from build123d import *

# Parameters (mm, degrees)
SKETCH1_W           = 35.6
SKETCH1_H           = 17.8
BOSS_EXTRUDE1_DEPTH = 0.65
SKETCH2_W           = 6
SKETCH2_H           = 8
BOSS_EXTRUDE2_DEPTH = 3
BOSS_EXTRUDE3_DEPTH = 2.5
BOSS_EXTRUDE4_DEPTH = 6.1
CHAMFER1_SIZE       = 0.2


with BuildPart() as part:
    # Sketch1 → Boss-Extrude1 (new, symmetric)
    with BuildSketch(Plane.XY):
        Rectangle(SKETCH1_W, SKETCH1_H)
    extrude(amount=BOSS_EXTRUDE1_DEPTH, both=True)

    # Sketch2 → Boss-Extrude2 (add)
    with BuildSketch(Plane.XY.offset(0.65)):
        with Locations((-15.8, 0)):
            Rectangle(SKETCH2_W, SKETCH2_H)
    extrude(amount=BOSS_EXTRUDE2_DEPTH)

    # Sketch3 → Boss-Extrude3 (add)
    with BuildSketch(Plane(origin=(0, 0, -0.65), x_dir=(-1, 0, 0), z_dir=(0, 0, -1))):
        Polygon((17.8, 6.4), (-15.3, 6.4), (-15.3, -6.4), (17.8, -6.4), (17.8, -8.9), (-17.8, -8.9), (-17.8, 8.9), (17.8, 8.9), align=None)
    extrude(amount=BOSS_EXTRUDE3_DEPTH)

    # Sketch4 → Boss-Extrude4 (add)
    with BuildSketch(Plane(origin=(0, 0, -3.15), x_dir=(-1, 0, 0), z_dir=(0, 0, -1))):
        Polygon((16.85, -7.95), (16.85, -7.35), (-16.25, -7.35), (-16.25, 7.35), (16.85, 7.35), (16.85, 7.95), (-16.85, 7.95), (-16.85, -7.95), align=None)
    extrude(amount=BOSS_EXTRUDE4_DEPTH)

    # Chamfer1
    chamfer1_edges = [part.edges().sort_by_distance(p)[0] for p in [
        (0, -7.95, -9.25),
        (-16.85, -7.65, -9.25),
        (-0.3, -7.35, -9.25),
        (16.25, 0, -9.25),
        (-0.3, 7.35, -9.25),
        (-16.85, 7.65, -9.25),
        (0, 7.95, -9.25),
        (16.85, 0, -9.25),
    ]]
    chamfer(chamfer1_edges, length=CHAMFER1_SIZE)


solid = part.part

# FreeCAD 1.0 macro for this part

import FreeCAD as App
import Part
import Sketcher


def edges_at(feature, points):
    """Names of the edges that pass closest to the given points."""
    edges = feature.Shape.Edges
    near = lambda p: min(range(len(edges)), key=lambda i: edges[i].distToShape(Part.Vertex(*p))[0])
    return sorted({f"Edge{near(p) + 1}" for p in points})


def add_polygon(sketch, points):
    """Adds a closed chain of lines whose ends are joined by coincident constraints."""
    first, n = sketch.GeometryCount, len(points)
    for a, b in zip(points, points[1:] + points[:1]):
        sketch.addGeometry(Part.LineSegment(App.Vector(*a, 0), App.Vector(*b, 0)), False)
    for i in range(n):
        sketch.addConstraint(Sketcher.Constraint("Coincident", first + i, 2, first + (i + 1) % n, 1))

doc = App.newDocument("Part")
body = doc.addObject("PartDesign::Body", "Body")

# Sketch on XY plane
sketch1 = body.newObject("Sketcher::SketchObject", "Sketch")
sketch1.AttachmentSupport = (doc.getObject("XY_Plane"), [""])
sketch1.MapMode = "FlatFace"
add_polygon(sketch1, [(-18, 9), (-18, -9), (18, -9), (18, 9)])  # lines 0-3
sketch1.addConstraint(Sketcher.Constraint("Vertical", 0))
sketch1.addConstraint(Sketcher.Constraint("Horizontal", 1))
sketch1.addConstraint(Sketcher.Constraint("Vertical", 2))
sketch1.addConstraint(Sketcher.Constraint("Horizontal", 3))
sketch1.addConstraint(Sketcher.Constraint("Symmetric", 0, 2, 2, 2, -1, 1))
sketch1.addConstraint(Sketcher.Constraint("DistanceX", 1, 1, 1, 2, 35.6))
sketch1.addConstraint(Sketcher.Constraint("DistanceY", 0, 2, 0, 1, 17.8))
pad1 = body.newObject("PartDesign::Pad", "Pad")
pad1.Profile = sketch1
pad1.Length = 1.3
pad1.Midplane = True

# Sketch on XY plane
sketch2 = body.newObject("Sketcher::SketchObject", "Sketch001")
sketch2.AttachmentSupport = (doc.getObject("XY_Plane"), [""])
sketch2.MapMode = "FlatFace"
sketch2.AttachmentOffset = App.Placement(App.Vector(0, 0, 0.65), App.Rotation())
add_polygon(sketch2, [(-19, 4), (-19, -4), (-13, -4), (-13, 4)])  # lines 0-3
sketch2.addConstraint(Sketcher.Constraint("Vertical", 0))
sketch2.addConstraint(Sketcher.Constraint("Horizontal", 1))
sketch2.addConstraint(Sketcher.Constraint("Vertical", 2))
sketch2.addConstraint(Sketcher.Constraint("Horizontal", 3))
sketch2.addConstraint(Sketcher.Constraint("DistanceX", 1, 1, 1, 2, 6.0))
sketch2.addConstraint(Sketcher.Constraint("DistanceY", 0, 2, 0, 1, 8.0))
sketch2.addConstraint(Sketcher.Constraint("DistanceY", 0, 2, -1, 1, 4.0))
sketch2.addConstraint(Sketcher.Constraint("DistanceX", 0, 2, -1, 1, 18.8))
pad2 = body.newObject("PartDesign::Pad", "Pad001")
pad2.Profile = sketch2
pad2.Length = 3

# Sketch on XY plane
sketch3 = body.newObject("Sketcher::SketchObject", "Sketch002")
sketch3.AttachmentSupport = (doc.getObject("XY_Plane"), [""])
sketch3.MapMode = "FlatFace"
sketch3.AttachmentOffset = App.Placement(App.Vector(0, 0, -0.65), App.Rotation())
add_polygon(sketch3, [(15.3, 6.4), (-17.8, 6.4), (-17.8, 8.9), (17.8, 8.9), (17.8, -8.9), (-17.8, -8.9), (-17.8, -6.4), (15.3, -6.4)])  # lines 0-7
sketch3.addConstraint(Sketcher.Constraint("Horizontal", 0))
sketch3.addConstraint(Sketcher.Constraint("Vertical", 1))
sketch3.addConstraint(Sketcher.Constraint("Horizontal", 2))
sketch3.addConstraint(Sketcher.Constraint("Vertical", 3))
sketch3.addConstraint(Sketcher.Constraint("Horizontal", 4))
sketch3.addConstraint(Sketcher.Constraint("Vertical", 5))
sketch3.addConstraint(Sketcher.Constraint("Horizontal", 6))
sketch3.addConstraint(Sketcher.Constraint("Vertical", 7))
sketch3.addConstraint(Sketcher.Constraint("Symmetric", 1, 2, 3, 2, -1, 1))
sketch3.addConstraint(Sketcher.Constraint("Symmetric", 0, 2, 5, 2, -1))
sketch3.addConstraint(Sketcher.Constraint("DistanceX", 0, 2, 0, 1, 33.1))
sketch3.addConstraint(Sketcher.Constraint("DistanceX", 2, 1, 2, 2, 35.6))
sketch3.addConstraint(Sketcher.Constraint("DistanceY", 1, 1, 1, 2, 2.5))
sketch3.addConstraint(Sketcher.Constraint("DistanceY", 3, 2, 3, 1, 17.8))
pad3 = body.newObject("PartDesign::Pad", "Pad002")
pad3.Profile = sketch3
pad3.Length = 2.5
pad3.Reversed = True

# Sketch on XY plane
sketch4 = body.newObject("Sketcher::SketchObject", "Sketch003")
sketch4.AttachmentSupport = (doc.getObject("XY_Plane"), [""])
sketch4.MapMode = "FlatFace"
sketch4.AttachmentOffset = App.Placement(App.Vector(0, 0, -3.15), App.Rotation())
add_polygon(sketch4, [(-16.9, -8), (-16.9, -7.3), (16.2, -7.3), (16.2, 7.3), (-16.9, 7.3), (-16.9, 8), (16.9, 8), (16.9, -8)])  # lines 0-7
sketch4.addConstraint(Sketcher.Constraint("Vertical", 0))
sketch4.addConstraint(Sketcher.Constraint("Horizontal", 1))
sketch4.addConstraint(Sketcher.Constraint("Vertical", 2))
sketch4.addConstraint(Sketcher.Constraint("Horizontal", 3))
sketch4.addConstraint(Sketcher.Constraint("Vertical", 4))
sketch4.addConstraint(Sketcher.Constraint("Horizontal", 5))
sketch4.addConstraint(Sketcher.Constraint("Vertical", 6))
sketch4.addConstraint(Sketcher.Constraint("Horizontal", 7))
sketch4.addConstraint(Sketcher.Constraint("Symmetric", 4, 2, 6, 2, -1, 1))
sketch4.addConstraint(Sketcher.Constraint("Symmetric", 0, 2, 3, 2, -1))
sketch4.addConstraint(Sketcher.Constraint("DistanceX", 1, 1, 1, 2, 33.1))
sketch4.addConstraint(Sketcher.Constraint("DistanceX", 5, 1, 5, 2, 33.7))
sketch4.addConstraint(Sketcher.Constraint("DistanceY", 0, 1, 0, 2, 0.6))
sketch4.addConstraint(Sketcher.Constraint("DistanceY", 2, 1, 2, 2, 14.7))
pad4 = body.newObject("PartDesign::Pad", "Pad003")
pad4.Profile = sketch4
pad4.Length = 6.1
pad4.Reversed = True
doc.recompute()

chamfer = body.newObject("PartDesign::Chamfer", "Chamfer")
chamfer.Base = (pad4, edges_at(pad4, [
    (0, -7.95, -9.25),
    (-16.85, -7.65, -9.25),
    (-0.3, -7.35, -9.25),
    (16.25, 0, -9.25),
    (-0.3, 7.35, -9.25),
    (-16.85, 7.65, -9.25),
    (0, 7.95, -9.25),
    (16.85, 0, -9.25),
]))
chamfer.Size = 0.2

doc.recompute()
